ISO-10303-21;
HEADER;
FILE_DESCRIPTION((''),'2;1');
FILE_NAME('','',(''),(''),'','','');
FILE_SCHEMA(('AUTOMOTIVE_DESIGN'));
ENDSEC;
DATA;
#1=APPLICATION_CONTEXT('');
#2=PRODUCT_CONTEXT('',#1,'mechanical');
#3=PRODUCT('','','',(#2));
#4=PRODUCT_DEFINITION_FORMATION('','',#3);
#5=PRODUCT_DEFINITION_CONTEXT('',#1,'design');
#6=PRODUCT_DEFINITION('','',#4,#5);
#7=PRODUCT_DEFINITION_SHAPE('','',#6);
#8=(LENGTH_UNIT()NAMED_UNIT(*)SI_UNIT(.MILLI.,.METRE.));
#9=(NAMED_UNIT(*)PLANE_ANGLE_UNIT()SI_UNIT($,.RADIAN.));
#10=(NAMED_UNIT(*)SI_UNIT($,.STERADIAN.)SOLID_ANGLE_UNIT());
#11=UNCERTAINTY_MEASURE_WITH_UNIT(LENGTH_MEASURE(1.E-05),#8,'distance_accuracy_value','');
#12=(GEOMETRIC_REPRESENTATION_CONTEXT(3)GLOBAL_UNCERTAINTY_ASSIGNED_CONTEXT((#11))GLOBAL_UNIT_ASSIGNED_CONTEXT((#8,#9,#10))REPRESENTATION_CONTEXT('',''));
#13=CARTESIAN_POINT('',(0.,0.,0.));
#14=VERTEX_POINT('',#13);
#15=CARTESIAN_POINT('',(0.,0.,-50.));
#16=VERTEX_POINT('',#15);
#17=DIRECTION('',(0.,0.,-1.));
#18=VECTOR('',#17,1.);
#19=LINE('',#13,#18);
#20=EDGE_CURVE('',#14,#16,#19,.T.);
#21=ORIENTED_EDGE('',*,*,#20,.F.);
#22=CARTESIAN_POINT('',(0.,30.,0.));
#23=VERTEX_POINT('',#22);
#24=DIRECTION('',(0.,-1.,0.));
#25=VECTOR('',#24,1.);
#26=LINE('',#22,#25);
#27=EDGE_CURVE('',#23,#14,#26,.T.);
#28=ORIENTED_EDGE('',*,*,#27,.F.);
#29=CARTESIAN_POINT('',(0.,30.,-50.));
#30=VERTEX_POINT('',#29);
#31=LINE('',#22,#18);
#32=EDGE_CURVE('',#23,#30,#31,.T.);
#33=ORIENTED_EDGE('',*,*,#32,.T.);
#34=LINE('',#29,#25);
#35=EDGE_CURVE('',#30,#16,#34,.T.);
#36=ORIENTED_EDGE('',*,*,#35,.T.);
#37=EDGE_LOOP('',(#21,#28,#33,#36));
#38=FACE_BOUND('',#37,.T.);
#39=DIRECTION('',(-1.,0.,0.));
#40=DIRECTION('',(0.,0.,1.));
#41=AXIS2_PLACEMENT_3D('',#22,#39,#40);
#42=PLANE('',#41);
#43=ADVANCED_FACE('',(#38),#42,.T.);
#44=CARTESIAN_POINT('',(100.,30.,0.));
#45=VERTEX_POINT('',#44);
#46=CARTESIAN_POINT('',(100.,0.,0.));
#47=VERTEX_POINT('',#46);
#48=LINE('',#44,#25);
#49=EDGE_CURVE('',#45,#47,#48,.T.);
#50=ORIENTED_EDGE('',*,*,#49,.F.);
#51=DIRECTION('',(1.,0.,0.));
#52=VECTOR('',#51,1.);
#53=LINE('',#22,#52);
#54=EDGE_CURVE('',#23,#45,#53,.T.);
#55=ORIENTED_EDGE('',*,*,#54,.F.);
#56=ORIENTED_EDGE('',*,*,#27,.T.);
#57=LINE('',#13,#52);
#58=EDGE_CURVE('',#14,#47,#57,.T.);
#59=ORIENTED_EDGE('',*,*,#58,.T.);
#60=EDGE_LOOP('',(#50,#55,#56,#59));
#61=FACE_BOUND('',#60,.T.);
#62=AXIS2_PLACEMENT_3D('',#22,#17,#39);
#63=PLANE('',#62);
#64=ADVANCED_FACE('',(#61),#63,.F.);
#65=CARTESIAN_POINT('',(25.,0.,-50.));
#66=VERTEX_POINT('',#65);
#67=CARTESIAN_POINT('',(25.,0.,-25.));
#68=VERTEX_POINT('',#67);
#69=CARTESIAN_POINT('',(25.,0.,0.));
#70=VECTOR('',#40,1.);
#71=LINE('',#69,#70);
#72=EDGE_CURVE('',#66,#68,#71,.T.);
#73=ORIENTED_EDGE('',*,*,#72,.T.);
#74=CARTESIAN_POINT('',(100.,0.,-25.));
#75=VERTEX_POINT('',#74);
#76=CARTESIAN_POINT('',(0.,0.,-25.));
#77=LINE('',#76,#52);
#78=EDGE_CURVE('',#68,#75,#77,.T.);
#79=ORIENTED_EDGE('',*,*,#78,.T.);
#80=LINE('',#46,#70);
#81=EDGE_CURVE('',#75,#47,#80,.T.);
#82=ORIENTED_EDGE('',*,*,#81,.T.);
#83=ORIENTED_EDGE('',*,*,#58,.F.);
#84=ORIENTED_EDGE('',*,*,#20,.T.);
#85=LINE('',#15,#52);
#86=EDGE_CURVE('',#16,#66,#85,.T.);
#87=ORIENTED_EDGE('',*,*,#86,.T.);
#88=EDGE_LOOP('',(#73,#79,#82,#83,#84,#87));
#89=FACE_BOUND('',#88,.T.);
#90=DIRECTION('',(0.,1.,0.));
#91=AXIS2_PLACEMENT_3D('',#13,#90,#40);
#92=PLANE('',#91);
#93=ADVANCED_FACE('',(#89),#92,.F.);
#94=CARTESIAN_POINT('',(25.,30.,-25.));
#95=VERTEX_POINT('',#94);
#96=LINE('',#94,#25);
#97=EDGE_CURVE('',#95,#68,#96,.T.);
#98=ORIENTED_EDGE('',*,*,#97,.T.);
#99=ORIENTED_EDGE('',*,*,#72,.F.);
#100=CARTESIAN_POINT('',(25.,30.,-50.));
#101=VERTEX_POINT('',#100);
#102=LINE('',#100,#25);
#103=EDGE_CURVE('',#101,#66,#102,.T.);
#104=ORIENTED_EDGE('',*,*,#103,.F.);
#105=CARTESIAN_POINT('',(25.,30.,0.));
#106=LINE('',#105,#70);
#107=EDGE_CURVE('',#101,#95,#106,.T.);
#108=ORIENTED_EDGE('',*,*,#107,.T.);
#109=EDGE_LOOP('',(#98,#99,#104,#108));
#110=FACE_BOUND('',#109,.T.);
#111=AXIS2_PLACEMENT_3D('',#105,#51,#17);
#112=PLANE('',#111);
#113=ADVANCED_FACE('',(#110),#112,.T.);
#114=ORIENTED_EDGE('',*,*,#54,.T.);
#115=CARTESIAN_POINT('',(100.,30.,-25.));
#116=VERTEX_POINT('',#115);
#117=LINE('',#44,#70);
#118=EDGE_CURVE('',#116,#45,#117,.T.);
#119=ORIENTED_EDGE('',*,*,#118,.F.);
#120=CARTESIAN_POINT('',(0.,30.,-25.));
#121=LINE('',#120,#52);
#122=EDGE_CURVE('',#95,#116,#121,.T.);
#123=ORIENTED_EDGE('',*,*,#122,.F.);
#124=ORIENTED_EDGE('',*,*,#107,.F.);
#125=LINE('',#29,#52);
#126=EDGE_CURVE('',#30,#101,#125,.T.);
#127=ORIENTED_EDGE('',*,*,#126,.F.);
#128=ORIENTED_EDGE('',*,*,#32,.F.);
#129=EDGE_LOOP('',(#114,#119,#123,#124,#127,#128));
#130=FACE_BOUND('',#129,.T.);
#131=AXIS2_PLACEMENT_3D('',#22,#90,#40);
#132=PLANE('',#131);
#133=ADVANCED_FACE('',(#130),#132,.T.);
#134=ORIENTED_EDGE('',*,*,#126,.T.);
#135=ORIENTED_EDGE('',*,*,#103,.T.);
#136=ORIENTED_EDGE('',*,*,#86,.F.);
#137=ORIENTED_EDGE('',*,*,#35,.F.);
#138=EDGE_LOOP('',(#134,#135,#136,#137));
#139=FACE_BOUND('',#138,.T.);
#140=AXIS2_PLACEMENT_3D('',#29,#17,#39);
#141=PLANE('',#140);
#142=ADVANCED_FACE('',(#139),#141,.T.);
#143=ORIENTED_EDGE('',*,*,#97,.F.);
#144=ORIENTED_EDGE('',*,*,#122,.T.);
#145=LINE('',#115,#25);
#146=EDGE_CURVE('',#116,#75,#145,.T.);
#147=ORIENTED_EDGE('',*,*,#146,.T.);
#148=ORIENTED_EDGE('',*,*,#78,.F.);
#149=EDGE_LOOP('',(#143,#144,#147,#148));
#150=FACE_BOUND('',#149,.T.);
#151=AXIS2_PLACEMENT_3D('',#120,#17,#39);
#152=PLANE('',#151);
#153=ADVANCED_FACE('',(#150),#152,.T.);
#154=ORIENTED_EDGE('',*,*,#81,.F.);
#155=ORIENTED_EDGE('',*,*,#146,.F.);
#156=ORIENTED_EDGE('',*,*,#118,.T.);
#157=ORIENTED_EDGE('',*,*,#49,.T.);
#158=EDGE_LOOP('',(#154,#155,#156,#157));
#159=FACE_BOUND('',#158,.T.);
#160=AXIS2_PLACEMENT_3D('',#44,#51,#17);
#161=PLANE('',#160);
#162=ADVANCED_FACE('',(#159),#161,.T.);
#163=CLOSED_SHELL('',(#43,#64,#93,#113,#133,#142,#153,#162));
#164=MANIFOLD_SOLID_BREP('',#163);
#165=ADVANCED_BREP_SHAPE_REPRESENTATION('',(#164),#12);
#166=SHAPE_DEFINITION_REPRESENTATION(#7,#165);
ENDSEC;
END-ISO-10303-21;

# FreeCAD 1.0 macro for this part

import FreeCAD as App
import Part
import Sketcher
from FreeCAD import Vector

doc = App.newDocument("Part")
body = doc.addObject("PartDesign::Body", "Body")

# Sketch on XZ plane
sketch1 = body.newObject("Sketcher::SketchObject", "Sketch")
sketch1.AttachmentSupport = (doc.getObject("XZ_Plane"), [""])
sketch1.MapMode = "FlatFace"
sketch1.addGeometry(Part.LineSegment(Vector(100, 0, 0), Vector(100, -25, 0)), False)
sketch1.addGeometry(Part.LineSegment(Vector(100, -25, 0), Vector(25, -25, 0)), False)
sketch1.addGeometry(Part.LineSegment(Vector(25, -25, 0), Vector(25, -50, 0)), False)
sketch1.addGeometry(Part.LineSegment(Vector(25, -50, 0), Vector(0, -50, 0)), False)
sketch1.addGeometry(Part.LineSegment(Vector(0, -50, 0), Vector(0, 0, 0)), False)
sketch1.addGeometry(Part.LineSegment(Vector(0, 0, 0), Vector(100, 0, 0)), False)
sketch1.addConstraint(Sketcher.Constraint("Coincident", 0, 2, 1, 1))
sketch1.addConstraint(Sketcher.Constraint("Coincident", 1, 2, 2, 1))
sketch1.addConstraint(Sketcher.Constraint("Coincident", 2, 2, 3, 1))
sketch1.addConstraint(Sketcher.Constraint("Coincident", 3, 2, 4, 1))
sketch1.addConstraint(Sketcher.Constraint("Coincident", 4, 2, 5, 1))
sketch1.addConstraint(Sketcher.Constraint("Coincident", 5, 2, 0, 1))
sketch1.addConstraint(Sketcher.Constraint("Vertical", 0))
sketch1.addConstraint(Sketcher.Constraint("Horizontal", 1))
sketch1.addConstraint(Sketcher.Constraint("Vertical", 2))
sketch1.addConstraint(Sketcher.Constraint("Horizontal", 3))
sketch1.addConstraint(Sketcher.Constraint("Vertical", 4))
sketch1.addConstraint(Sketcher.Constraint("Horizontal", 5))
sketch1.addConstraint(Sketcher.Constraint("Coincident", 4, 2, -1, 1))
sketch1.addConstraint(Sketcher.Constraint("Equal", 3, 0))
sketch1.addConstraint(Sketcher.Constraint("Equal", 0, 2))
sketch1.addConstraint(Sketcher.Constraint("DistanceX", 1, 2, 1, 1, 75.0))
sketch1.addConstraint(Sketcher.Constraint("DistanceX", 3, 2, 3, 1, 25.0))
pad1 = body.newObject("PartDesign::Pad", "Pad")
pad1.Profile = sketch1
pad1.Length = 30
pad1.Reversed = True

doc.recompute()
